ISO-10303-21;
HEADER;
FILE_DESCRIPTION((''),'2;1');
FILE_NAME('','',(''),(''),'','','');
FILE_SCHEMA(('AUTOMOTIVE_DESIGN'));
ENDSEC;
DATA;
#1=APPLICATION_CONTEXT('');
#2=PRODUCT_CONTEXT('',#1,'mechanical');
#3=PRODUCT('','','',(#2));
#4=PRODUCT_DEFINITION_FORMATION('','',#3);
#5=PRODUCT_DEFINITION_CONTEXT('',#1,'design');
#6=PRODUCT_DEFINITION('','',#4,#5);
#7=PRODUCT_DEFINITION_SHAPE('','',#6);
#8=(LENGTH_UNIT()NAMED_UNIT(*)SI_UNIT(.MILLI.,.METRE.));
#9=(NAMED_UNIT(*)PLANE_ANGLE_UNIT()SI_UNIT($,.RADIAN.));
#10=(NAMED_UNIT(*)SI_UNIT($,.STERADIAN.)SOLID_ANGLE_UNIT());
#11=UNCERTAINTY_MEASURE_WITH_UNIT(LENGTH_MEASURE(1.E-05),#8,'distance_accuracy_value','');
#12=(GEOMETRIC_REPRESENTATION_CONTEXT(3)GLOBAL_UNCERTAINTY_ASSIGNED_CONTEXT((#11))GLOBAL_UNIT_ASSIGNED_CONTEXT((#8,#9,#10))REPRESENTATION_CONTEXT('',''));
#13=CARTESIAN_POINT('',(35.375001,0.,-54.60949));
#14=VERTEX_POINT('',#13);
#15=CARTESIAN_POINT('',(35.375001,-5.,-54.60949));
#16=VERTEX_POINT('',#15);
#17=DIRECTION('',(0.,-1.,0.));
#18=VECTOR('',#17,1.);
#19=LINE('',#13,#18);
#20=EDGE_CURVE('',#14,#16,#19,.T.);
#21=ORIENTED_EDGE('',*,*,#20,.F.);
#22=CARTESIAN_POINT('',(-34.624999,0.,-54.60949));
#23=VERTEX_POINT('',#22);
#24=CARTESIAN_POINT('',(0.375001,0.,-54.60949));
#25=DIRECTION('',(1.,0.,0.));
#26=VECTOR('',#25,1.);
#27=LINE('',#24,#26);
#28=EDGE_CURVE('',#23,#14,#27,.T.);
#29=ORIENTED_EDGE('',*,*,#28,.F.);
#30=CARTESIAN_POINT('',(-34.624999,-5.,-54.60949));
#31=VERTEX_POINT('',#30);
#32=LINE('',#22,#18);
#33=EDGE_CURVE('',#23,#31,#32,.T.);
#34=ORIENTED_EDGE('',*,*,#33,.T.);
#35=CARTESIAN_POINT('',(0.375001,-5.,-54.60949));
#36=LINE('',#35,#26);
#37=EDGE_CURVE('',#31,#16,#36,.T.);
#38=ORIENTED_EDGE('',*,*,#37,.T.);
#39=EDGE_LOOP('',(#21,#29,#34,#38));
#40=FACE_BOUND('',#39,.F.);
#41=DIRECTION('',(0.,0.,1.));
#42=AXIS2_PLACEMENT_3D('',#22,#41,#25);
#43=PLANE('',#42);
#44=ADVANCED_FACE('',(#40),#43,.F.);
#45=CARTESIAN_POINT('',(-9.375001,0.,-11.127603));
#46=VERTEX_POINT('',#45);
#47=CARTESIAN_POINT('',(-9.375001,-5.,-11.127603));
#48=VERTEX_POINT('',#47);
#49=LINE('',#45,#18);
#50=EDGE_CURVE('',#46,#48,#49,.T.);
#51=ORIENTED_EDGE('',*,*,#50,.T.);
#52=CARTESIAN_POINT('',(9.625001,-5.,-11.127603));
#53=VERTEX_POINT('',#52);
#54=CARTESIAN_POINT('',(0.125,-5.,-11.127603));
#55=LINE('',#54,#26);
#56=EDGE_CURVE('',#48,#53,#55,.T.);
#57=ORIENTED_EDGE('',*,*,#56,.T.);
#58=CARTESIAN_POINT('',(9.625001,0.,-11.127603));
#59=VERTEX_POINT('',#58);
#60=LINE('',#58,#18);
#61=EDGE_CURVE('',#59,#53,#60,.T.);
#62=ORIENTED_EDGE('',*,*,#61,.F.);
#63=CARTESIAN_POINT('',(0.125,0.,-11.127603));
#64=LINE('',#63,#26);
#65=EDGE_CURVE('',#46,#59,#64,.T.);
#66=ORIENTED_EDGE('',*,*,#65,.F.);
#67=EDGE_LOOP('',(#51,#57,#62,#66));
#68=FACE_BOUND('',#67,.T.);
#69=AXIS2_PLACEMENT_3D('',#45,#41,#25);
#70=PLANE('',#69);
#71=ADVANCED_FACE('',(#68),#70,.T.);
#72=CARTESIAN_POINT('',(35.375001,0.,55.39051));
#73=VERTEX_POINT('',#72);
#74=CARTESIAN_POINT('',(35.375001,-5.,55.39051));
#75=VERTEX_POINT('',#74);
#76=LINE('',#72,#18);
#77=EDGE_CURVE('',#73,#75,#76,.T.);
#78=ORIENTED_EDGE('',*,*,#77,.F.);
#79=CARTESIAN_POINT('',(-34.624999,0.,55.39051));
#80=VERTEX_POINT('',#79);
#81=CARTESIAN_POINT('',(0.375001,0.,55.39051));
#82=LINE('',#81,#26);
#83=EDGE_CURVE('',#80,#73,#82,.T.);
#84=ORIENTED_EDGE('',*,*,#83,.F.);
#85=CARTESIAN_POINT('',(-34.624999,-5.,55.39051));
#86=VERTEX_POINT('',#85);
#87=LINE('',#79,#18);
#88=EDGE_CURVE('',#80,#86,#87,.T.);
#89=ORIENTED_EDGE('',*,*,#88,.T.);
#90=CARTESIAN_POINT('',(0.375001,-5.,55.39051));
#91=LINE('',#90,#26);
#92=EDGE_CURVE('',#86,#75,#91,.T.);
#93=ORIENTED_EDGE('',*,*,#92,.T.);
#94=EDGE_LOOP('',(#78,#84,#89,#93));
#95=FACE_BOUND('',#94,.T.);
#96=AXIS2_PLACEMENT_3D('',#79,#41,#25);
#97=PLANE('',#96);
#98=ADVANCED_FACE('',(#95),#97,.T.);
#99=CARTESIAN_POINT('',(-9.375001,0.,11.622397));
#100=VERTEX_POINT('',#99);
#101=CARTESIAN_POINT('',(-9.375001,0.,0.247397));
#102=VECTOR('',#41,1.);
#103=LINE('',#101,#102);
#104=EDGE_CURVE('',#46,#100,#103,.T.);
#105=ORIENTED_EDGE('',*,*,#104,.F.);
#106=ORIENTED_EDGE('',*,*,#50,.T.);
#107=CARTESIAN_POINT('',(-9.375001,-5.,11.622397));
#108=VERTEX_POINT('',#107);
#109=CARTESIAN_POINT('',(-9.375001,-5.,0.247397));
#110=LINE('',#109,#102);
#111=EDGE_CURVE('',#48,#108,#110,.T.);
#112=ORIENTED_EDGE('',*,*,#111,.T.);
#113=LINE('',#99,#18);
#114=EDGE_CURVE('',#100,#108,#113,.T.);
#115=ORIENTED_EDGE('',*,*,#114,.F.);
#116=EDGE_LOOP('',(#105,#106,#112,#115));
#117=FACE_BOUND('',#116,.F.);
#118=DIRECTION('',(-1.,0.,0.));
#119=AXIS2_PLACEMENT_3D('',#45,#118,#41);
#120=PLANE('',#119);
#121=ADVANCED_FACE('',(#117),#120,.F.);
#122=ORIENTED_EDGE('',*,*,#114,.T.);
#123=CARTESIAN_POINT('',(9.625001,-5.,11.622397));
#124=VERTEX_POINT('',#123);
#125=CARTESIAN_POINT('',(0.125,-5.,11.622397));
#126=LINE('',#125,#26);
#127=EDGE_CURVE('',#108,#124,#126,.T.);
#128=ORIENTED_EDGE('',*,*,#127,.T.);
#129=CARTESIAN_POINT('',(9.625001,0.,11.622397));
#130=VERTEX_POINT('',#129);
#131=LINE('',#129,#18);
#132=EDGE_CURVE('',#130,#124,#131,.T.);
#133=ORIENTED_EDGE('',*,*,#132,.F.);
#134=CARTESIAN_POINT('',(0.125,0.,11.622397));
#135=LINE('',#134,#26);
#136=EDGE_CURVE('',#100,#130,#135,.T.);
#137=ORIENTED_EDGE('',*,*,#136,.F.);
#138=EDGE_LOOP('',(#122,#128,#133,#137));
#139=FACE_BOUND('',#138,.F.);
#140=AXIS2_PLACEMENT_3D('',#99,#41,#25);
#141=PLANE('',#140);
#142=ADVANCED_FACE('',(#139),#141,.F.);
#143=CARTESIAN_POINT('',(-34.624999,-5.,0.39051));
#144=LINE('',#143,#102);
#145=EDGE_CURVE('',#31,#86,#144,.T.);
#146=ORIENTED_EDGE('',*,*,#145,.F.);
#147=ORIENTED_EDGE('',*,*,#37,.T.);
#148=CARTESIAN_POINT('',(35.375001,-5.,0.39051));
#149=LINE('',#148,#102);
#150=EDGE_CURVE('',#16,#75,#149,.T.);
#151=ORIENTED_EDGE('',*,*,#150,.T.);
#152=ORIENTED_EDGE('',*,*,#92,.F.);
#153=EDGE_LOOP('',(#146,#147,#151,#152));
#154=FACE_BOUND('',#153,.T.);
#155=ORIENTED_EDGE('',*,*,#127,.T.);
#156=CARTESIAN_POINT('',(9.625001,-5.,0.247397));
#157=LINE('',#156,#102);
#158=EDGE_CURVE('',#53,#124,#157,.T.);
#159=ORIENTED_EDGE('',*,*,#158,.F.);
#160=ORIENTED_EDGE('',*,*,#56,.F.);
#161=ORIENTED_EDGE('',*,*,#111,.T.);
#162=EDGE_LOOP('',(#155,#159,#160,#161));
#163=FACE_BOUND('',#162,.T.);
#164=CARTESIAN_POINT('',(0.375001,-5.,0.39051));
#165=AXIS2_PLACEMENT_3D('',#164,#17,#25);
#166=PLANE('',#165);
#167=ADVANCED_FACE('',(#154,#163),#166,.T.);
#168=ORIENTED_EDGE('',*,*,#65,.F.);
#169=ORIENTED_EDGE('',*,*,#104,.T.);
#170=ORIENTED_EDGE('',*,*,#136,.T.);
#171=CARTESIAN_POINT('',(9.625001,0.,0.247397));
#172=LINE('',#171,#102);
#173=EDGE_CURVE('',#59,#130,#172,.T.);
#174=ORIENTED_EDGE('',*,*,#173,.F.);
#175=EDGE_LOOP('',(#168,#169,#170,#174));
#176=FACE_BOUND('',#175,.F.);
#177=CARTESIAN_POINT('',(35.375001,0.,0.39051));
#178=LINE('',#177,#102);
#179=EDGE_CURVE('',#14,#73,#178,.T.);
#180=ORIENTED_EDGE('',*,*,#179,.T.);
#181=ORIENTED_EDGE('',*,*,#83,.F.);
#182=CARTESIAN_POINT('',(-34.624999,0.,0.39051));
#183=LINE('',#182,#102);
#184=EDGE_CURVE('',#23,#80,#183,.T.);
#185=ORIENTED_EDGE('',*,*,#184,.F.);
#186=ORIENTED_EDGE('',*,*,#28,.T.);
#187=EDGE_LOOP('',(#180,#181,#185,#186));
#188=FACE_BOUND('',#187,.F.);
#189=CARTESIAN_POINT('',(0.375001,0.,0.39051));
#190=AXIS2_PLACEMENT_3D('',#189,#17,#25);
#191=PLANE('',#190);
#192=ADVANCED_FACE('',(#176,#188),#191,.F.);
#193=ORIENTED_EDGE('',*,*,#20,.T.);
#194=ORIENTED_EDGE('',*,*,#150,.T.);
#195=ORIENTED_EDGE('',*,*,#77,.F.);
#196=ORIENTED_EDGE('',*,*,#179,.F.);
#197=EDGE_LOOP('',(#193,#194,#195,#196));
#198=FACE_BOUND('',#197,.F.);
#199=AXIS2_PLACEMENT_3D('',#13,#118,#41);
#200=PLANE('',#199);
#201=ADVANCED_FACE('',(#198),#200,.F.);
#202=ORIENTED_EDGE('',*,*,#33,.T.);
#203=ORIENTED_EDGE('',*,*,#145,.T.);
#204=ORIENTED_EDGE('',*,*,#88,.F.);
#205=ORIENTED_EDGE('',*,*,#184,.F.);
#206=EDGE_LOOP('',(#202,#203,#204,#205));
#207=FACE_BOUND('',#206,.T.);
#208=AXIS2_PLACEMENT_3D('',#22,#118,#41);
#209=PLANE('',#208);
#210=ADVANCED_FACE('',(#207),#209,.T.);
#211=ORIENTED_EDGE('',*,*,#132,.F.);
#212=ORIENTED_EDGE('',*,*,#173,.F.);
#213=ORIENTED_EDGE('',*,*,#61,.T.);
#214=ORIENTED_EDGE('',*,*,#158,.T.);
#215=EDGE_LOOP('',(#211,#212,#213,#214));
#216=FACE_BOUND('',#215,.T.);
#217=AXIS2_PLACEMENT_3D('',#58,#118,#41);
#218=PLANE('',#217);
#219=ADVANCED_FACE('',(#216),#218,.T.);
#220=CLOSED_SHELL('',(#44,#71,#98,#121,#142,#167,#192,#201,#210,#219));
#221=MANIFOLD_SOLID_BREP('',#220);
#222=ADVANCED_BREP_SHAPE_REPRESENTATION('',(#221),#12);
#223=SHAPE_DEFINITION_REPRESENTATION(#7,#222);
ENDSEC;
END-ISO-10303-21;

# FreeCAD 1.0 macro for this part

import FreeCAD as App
import Part
import Sketcher
from FreeCAD import Vector
Q = App.Units.Quantity


def add_polygon(sketch, points):
    """Adds a closed chain of lines whose ends are joined by coincident constraints."""
    first, n = sketch.GeometryCount, len(points)
    for a, b in zip(points, points[1:] + points[:1]):
        sketch.addGeometry(Part.LineSegment(App.Vector(*a, 0), App.Vector(*b, 0)), False)
    for i in range(n):
        sketch.addConstraint(Sketcher.Constraint("Coincident", first + i, 2, first + (i + 1) % n, 1))

doc = App.newDocument("Part")
body = doc.addObject("PartDesign::Body", "Body")

sketch1 = body.newObject("Sketcher::SketchObject", "Sketch")
sketch1.AttachmentSupport = (doc.getObject("XZ_Plane"), [""])
sketch1.MapMode = "FlatFace"
add_polygon(sketch1, [(-35, 55), (-35, -55), (35, -55), (35, 55)])
add_polygon(sketch1, [(10, -11), (-9, -11), (-9, 12), (10, 12)])
sketch1.addConstraint(Sketcher.Constraint("Vertical", 0))
sketch1.addConstraint(Sketcher.Constraint("Horizontal", 1))
sketch1.addConstraint(Sketcher.Constraint("Vertical", 2))
sketch1.addConstraint(Sketcher.Constraint("Horizontal", 3))
sketch1.addConstraint(Sketcher.Constraint("Horizontal", 4))
sketch1.addConstraint(Sketcher.Constraint("Vertical", 5))
sketch1.addConstraint(Sketcher.Constraint("Horizontal", 6))
sketch1.addConstraint(Sketcher.Constraint("Vertical", 7))
sketch1.addConstraint(Sketcher.Constraint("DistanceX", 1, 1, 1, 2, Q("70 mm")))
sketch1.addConstraint(Sketcher.Constraint("DistanceX", 4, 2, 4, 1, Q("19.000001 mm")))
sketch1.addConstraint(Sketcher.Constraint("DistanceY", 0, 2, 0, 1, Q("110 mm")))
sketch1.addConstraint(Sketcher.Constraint("DistanceY", 5, 1, 5, 2, Q("22.75 mm")))
sketch1.addConstraint(Sketcher.Constraint("DistanceX", 0, 2, 4, 2, Q("25.249999 mm")))
sketch1.addConstraint(Sketcher.Constraint("DistanceX", 0, 2, -1, 1, Q("34.624999 mm")))
sketch1.addConstraint(Sketcher.Constraint("DistanceY", 0, 2, -1, 1, Q("54.60949 mm")))
sketch1.addConstraint(Sketcher.Constraint("DistanceY", 4, 2, -1, 1, Q("11.127603 mm")))
pad1 = body.newObject("PartDesign::Pad", "Pad")
pad1.Profile = sketch1
pad1.Length = 5

sketch2 = body.newObject("Sketcher::SketchObject", "Sketch001")
sketch2.AttachmentSupport = (doc.getObject("XZ_Plane"), [""])
sketch2.MapMode = "FlatFace"
add_polygon(sketch2, [(-35, 55), (-35, -55), (35, -55), (35, 55)])
add_polygon(sketch2, [(10, -11), (-9, -11), (-9, 12), (10, 12)])
sketch2.addConstraint(Sketcher.Constraint("Vertical", 0))
sketch2.addConstraint(Sketcher.Constraint("Horizontal", 1))
sketch2.addConstraint(Sketcher.Constraint("Vertical", 2))
sketch2.addConstraint(Sketcher.Constraint("Horizontal", 3))
sketch2.addConstraint(Sketcher.Constraint("Horizontal", 4))
sketch2.addConstraint(Sketcher.Constraint("Vertical", 5))
sketch2.addConstraint(Sketcher.Constraint("Horizontal", 6))
sketch2.addConstraint(Sketcher.Constraint("Vertical", 7))
sketch2.addConstraint(Sketcher.Constraint("DistanceX", 1, 1, 1, 2, Q("70 mm")))
sketch2.addConstraint(Sketcher.Constraint("DistanceX", 4, 2, 4, 1, Q("19.000001 mm")))
sketch2.addConstraint(Sketcher.Constraint("DistanceY", 0, 2, 0, 1, Q("110 mm")))
sketch2.addConstraint(Sketcher.Constraint("DistanceY", 5, 1, 5, 2, Q("22.75 mm")))
sketch2.addConstraint(Sketcher.Constraint("DistanceX", 0, 2, 4, 2, Q("25.249999 mm")))
sketch2.addConstraint(Sketcher.Constraint("DistanceX", 0, 2, -1, 1, Q("34.624999 mm")))
sketch2.addConstraint(Sketcher.Constraint("DistanceY", 0, 2, -1, 1, Q("54.60949 mm")))
sketch2.addConstraint(Sketcher.Constraint("DistanceY", 4, 2, -1, 1, Q("11.127603 mm")))
pad2 = body.newObject("PartDesign::Pad", "Pad001")
pad2.Profile = sketch2
pad2.Length = 5

doc.recompute()
